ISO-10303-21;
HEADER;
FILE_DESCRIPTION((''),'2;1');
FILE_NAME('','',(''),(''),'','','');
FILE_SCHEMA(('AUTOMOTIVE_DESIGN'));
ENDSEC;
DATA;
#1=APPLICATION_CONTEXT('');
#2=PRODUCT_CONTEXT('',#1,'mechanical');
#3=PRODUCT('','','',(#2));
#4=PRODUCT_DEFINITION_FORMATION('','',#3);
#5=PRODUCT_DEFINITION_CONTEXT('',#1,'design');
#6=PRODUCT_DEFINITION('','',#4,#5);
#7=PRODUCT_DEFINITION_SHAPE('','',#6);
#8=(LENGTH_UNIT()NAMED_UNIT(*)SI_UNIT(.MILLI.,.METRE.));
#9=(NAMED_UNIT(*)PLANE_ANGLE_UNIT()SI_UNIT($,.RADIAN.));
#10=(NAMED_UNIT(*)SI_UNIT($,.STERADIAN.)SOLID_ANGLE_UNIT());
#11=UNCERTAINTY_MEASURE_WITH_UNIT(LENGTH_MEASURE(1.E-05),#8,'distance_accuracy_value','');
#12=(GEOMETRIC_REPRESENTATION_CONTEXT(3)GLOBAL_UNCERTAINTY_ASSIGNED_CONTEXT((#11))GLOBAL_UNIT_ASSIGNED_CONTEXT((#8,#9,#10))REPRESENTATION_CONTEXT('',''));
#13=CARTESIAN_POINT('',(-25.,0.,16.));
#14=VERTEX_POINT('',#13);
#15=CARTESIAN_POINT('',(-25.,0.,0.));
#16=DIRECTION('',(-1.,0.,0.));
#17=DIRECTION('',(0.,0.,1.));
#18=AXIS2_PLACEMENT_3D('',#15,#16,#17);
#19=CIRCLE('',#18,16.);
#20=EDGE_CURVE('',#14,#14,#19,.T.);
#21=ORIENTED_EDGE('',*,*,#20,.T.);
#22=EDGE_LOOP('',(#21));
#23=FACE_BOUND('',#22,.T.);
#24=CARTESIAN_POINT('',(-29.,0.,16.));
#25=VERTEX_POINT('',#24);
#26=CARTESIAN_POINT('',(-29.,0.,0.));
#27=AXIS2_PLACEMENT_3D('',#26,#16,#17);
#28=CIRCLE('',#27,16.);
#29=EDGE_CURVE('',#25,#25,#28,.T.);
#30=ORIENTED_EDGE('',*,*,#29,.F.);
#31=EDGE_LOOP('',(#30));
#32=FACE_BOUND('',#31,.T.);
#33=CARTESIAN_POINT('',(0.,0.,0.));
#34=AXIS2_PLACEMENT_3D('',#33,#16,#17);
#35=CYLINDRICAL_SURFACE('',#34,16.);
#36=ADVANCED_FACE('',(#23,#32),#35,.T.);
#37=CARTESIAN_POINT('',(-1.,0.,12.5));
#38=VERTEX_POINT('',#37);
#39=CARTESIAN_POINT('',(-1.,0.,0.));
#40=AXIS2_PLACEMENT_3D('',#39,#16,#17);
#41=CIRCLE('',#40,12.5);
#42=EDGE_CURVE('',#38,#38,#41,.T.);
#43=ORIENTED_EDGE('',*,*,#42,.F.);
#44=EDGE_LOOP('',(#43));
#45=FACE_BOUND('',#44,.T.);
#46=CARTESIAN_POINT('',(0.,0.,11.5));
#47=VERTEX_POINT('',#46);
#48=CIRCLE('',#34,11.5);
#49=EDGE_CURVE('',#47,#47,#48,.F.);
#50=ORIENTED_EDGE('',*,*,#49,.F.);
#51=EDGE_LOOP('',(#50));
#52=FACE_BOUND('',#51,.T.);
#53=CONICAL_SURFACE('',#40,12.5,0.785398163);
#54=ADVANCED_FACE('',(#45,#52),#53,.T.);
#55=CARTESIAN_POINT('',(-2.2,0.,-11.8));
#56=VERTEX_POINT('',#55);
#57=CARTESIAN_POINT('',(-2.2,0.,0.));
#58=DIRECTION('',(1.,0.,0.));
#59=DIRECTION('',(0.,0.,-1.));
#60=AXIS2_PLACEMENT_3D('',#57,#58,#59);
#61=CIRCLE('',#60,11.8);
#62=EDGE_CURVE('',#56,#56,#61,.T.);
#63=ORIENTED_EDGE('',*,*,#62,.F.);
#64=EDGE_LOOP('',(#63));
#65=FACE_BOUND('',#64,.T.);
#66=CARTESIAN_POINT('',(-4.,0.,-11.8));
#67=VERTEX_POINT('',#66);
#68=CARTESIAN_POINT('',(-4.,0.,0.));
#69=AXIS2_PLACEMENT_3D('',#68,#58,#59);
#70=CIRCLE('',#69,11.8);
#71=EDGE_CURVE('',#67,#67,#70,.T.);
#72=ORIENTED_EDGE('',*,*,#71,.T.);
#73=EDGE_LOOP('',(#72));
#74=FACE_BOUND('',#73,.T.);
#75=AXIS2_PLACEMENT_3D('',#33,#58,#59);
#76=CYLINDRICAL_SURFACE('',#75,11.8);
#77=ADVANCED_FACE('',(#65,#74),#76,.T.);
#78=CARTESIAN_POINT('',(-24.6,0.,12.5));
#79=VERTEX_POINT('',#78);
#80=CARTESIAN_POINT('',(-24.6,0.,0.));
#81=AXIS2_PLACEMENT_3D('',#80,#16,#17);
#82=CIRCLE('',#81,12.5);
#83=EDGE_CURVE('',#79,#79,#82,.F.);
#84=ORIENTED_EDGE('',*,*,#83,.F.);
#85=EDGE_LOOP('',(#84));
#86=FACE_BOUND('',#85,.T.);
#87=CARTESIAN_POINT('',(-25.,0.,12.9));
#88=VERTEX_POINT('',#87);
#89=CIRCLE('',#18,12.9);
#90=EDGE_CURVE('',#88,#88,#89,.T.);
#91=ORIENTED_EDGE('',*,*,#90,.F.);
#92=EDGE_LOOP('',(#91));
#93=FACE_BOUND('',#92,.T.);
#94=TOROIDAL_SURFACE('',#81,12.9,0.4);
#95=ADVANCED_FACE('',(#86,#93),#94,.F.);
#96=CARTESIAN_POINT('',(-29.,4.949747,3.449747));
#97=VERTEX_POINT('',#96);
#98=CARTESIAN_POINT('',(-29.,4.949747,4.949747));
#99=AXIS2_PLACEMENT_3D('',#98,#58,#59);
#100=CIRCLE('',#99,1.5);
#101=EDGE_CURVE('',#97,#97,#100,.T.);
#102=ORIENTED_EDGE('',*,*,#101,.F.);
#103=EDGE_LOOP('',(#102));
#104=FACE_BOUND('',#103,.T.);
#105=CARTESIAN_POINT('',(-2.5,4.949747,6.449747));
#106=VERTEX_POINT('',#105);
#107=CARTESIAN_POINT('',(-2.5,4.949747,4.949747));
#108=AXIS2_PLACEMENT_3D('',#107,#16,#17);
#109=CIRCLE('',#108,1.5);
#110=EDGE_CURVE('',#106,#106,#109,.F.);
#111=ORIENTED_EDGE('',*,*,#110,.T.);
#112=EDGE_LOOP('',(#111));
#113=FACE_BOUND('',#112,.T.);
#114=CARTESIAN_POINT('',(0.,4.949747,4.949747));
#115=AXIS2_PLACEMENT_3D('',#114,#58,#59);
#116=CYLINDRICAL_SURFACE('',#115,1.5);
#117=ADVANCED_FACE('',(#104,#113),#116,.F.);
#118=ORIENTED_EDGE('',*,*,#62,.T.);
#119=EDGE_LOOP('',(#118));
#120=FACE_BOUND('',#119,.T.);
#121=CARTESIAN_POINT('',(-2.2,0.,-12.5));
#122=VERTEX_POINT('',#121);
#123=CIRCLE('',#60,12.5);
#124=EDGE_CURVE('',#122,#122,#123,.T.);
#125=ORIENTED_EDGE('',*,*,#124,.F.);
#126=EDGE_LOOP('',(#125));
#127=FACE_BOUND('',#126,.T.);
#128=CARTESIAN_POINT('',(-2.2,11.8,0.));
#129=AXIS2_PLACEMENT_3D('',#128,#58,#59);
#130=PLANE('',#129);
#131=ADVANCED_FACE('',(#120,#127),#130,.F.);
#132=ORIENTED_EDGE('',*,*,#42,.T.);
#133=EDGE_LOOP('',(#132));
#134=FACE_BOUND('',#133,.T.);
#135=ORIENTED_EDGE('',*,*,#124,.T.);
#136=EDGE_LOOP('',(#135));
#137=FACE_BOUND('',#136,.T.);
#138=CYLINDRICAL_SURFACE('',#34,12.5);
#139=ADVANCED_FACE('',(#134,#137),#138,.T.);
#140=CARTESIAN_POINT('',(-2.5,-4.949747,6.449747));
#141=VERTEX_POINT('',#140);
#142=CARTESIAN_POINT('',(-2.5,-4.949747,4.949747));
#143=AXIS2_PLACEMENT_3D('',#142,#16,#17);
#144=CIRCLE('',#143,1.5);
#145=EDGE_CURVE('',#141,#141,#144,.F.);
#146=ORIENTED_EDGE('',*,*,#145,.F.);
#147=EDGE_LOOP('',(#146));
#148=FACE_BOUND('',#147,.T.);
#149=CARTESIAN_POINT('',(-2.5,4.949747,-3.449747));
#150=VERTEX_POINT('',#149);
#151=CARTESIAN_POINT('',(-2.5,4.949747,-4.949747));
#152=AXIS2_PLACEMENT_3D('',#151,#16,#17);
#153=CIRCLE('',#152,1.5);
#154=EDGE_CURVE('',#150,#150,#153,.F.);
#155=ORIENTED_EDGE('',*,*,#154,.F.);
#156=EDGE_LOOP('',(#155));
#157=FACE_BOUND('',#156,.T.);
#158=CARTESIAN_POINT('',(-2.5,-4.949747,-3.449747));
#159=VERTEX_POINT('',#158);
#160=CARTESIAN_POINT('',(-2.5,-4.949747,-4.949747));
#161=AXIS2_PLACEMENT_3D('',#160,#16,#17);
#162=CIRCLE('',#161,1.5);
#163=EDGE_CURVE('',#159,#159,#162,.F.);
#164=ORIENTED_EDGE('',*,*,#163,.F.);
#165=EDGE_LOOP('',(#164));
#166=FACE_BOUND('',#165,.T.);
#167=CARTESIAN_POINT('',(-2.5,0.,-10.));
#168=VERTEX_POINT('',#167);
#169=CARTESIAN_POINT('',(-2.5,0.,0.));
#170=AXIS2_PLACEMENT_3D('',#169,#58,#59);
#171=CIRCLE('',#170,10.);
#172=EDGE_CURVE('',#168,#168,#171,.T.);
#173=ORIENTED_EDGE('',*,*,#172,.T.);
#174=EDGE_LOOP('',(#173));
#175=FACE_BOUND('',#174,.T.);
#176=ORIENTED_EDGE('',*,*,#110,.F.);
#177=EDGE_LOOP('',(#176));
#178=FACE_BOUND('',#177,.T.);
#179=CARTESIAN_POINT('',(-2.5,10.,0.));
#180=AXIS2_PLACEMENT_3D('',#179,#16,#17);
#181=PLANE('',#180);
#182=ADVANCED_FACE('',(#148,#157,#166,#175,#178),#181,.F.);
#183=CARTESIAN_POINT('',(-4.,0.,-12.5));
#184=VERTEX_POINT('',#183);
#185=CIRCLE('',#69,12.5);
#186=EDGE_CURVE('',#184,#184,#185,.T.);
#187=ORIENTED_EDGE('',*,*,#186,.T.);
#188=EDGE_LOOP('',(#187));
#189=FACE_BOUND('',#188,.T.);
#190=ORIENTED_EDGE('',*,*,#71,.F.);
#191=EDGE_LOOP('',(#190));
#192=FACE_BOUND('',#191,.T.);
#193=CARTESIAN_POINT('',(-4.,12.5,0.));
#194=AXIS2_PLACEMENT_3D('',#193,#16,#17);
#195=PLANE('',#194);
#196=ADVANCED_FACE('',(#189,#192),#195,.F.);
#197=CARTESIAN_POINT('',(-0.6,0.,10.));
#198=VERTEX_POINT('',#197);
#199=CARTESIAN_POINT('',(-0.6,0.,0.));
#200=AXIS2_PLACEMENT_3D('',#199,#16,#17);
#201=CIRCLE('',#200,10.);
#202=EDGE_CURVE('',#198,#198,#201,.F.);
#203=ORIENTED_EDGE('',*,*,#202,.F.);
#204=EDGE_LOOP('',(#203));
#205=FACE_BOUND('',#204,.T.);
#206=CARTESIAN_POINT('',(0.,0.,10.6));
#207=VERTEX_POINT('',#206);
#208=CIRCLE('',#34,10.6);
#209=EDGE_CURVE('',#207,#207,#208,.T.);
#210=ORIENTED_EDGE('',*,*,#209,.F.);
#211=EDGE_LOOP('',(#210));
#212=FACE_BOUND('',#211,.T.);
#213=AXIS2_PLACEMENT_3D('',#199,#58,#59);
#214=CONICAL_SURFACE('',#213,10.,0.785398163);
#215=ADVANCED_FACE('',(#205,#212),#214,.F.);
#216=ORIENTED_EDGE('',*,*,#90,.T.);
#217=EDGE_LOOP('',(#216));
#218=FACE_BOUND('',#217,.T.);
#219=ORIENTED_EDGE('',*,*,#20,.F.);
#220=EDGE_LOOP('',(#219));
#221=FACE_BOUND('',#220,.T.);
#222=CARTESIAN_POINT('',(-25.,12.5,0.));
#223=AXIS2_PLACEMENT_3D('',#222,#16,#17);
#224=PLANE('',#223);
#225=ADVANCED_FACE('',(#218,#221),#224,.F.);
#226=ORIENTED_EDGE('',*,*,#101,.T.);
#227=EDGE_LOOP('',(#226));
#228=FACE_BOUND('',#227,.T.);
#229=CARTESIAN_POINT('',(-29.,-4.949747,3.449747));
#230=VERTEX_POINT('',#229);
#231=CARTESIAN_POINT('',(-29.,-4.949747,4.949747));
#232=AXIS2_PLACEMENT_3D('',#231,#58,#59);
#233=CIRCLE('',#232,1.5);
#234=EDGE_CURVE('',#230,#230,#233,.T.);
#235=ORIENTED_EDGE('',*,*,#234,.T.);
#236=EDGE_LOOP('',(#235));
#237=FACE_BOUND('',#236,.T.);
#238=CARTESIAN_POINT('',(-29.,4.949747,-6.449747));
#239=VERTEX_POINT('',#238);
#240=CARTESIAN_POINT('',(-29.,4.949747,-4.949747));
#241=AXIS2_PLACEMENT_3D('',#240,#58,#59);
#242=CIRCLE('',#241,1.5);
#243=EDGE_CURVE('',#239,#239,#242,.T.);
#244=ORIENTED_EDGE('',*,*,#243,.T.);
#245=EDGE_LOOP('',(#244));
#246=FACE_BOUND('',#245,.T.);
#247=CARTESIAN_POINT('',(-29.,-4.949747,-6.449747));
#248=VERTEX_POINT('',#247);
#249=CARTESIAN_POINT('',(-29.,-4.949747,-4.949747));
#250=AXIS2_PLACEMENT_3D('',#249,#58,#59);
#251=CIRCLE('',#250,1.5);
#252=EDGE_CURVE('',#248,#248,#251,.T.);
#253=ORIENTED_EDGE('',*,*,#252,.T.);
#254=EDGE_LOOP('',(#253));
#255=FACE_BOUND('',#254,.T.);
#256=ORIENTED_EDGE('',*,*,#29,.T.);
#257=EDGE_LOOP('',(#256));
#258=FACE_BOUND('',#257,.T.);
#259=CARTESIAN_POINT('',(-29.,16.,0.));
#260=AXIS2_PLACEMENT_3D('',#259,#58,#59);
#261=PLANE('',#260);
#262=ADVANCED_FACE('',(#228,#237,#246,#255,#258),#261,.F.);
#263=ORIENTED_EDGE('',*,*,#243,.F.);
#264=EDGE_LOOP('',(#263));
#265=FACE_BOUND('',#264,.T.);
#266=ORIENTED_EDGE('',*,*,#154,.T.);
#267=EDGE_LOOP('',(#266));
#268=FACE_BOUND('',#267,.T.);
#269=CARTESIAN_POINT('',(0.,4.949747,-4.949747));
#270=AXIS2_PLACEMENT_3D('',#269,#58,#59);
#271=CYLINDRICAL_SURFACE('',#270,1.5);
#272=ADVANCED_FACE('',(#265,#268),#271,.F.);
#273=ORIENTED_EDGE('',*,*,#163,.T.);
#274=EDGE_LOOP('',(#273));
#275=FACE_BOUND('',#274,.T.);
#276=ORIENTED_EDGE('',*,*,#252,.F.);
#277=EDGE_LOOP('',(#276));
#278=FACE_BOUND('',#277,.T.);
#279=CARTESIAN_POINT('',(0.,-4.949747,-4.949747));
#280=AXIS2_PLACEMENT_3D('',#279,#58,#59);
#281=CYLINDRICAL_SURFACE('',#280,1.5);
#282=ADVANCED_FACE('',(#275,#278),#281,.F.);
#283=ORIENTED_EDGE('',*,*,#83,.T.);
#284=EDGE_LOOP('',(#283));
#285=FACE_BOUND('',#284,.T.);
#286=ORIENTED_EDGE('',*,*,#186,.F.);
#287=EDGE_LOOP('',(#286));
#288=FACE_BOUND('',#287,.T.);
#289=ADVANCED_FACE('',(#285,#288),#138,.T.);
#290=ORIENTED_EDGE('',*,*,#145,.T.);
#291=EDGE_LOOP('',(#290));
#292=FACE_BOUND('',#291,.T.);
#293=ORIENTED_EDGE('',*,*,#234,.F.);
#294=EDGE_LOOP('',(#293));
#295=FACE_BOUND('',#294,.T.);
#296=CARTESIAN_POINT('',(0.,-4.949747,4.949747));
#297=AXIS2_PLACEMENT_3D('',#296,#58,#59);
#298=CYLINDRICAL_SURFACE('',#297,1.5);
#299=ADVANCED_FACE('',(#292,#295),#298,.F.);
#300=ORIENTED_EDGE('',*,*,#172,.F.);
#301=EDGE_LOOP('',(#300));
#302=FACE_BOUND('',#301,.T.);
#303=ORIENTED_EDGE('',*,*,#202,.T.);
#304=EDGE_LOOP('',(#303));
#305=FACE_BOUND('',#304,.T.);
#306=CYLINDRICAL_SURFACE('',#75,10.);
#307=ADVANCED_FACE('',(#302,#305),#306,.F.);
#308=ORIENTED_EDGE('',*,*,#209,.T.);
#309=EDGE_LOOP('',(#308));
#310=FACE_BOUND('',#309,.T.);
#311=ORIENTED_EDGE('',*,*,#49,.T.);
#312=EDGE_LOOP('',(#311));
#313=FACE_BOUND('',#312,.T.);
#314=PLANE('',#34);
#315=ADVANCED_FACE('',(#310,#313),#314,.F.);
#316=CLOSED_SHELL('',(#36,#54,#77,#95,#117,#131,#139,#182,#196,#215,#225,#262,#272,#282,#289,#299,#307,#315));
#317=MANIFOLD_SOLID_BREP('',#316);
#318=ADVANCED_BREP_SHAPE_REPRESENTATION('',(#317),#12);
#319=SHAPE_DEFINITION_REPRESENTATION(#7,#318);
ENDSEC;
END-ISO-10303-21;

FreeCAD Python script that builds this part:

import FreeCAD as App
import Part
import Sketcher

V = App.Vector


def edges_at(feature, points):
    """Names of the edges that pass closest to the given points."""
    edges = feature.Shape.Edges
    near = lambda p: min(range(len(edges)), key=lambda i: edges[i].distToShape(Part.Vertex(*p))[0])
    return sorted({f"Edge{near(p) + 1}" for p in points})

doc = App.newDocument("Part")
body = doc.addObject("PartDesign::Body", "Body")

# Sketch on XY plane
sketch1 = doc.addObject("Sketcher::SketchObject", "Sketch")
body.addObject(sketch1)
sketch1.AttachmentSupport = (doc.XY_Plane, [""])
sketch1.MapMode = "FlatFace"
sketch1.addGeometry([
    Part.LineSegment(V(0, 0, 0), V(0, 12.5, 0)),  # 0
    Part.LineSegment(V(0, 12.5, 0), V(-25, 12.5, 0)),  # 1
    Part.LineSegment(V(-25, 12.5, 0), V(-25, 16, 0)),  # 2
    Part.LineSegment(V(-25, 16, 0), V(-29, 16, 0)),  # 3
    Part.LineSegment(V(-29, 16, 0), V(-29, 0, 0)),  # 4
    Part.LineSegment(V(-29, 0, 0), V(0, 0, 0)),  # 5
], False)
sketch1.addConstraint([
    Sketcher.Constraint("Coincident", 0, 2, 1, 1),
    Sketcher.Constraint("Coincident", 1, 2, 2, 1),
    Sketcher.Constraint("Coincident", 2, 2, 3, 1),
    Sketcher.Constraint("Coincident", 3, 2, 4, 1),
    Sketcher.Constraint("Coincident", 4, 2, 5, 1),
    Sketcher.Constraint("Coincident", 5, 2, 0, 1),
    Sketcher.Constraint("Vertical", 0),
    Sketcher.Constraint("Horizontal", 1),
    Sketcher.Constraint("Vertical", 2),
    Sketcher.Constraint("Horizontal", 3),
    Sketcher.Constraint("Vertical", 4),
    Sketcher.Constraint("Horizontal", 5),
    Sketcher.Constraint("Coincident", 5, 2, -1, 1),
    Sketcher.Constraint("DistanceX", 1, 2, 1, 1, 25.0),
    Sketcher.Constraint("DistanceX", 3, 2, 3, 1, 4.0),
    Sketcher.Constraint("DistanceY", 4, 2, 4, 1, 16.0),
    Sketcher.Constraint("DistanceY", 0, 1, 0, 2, 12.5),
])
revolution = doc.addObject("PartDesign::Revolution", "Revolution")
body.addObject(revolution)
revolution.Profile = sketch1
revolution.ReferenceAxis = (sketch1, ["H_Axis"])
revolution.Angle = 360

# Sketch on XY plane
sketch2 = doc.addObject("Sketcher::SketchObject", "Sketch001")
body.addObject(sketch2)
sketch2.AttachmentSupport = (doc.XY_Plane, [""])
sketch2.MapMode = "FlatFace"
sketch2.addGeometry([
    Part.LineSegment(V(-4, 12.5, 0), V(-4, 11.8, 0)),
    Part.LineSegment(V(-4, 11.8, 0), V(-2.2, 11.8, 0)),
    Part.LineSegment(V(-2.2, 11.8, 0), V(-2.2, 12.5, 0)),
    Part.LineSegment(V(-2.2, 12.5, 0), V(-4, 12.5, 0)),
], False)
sketch2.addConstraint([
    Sketcher.Constraint("Coincident", 0, 2, 1, 1),
    Sketcher.Constraint("Coincident", 1, 2, 2, 1),
    Sketcher.Constraint("Coincident", 2, 2, 3, 1),
    Sketcher.Constraint("Coincident", 3, 2, 0, 1),
    Sketcher.Constraint("Vertical", 0),
    Sketcher.Constraint("Horizontal", 1),
    Sketcher.Constraint("Vertical", 2),
    Sketcher.Constraint("Horizontal", 3),
    Sketcher.Constraint("DistanceX", 1, 1, 1, 2, 1.8),
    Sketcher.Constraint("DistanceY", 0, 2, 0, 1, 0.7),
    Sketcher.Constraint("DistanceX", 0, 2, -1, 1, 4.0),
    Sketcher.Constraint("DistanceY", -1, 1, 0, 2, 11.8),
])
groove = doc.addObject("PartDesign::Groove", "Groove")
body.addObject(groove)
groove.Profile = sketch2
groove.ReferenceAxis = (sketch2, ["H_Axis"])
groove.Angle = 360
doc.recompute()

chamfer = doc.addObject("PartDesign::Chamfer", "Chamfer")
body.addObject(chamfer)
chamfer.Base = (groove, edges_at(groove, [(0, 0, -12.5)]))
chamfer.Size = 1
doc.recompute()

fillet = doc.addObject("PartDesign::Fillet", "Fillet")
body.addObject(fillet)
fillet.Base = (chamfer, edges_at(chamfer, [(-25, 0, -12.5)]))
fillet.Radius = 0.4

# Sketch on YZ plane
sketch3 = doc.addObject("Sketcher::SketchObject", "Sketch002")
body.addObject(sketch3)
sketch3.AttachmentSupport = (doc.YZ_Plane, [""])
sketch3.MapMode = "FlatFace"
sketch3.addGeometry(Part.Circle(V(4.9, -4.9, 0), V(0, 0, 1), 1.5), False)
sketch3.addConstraint([
    Sketcher.Constraint("Diameter", 0, 3.0),
    Sketcher.Constraint("DistanceX", -1, 1, 0, 3, 4.949747),
    Sketcher.Constraint("DistanceY", 0, 3, -1, 1, 4.949747),
])
doc.recompute()
hole = doc.addObject("PartDesign::Hole", "Hole")
body.addObject(hole)
hole.Profile = sketch3
hole.ThreadType = "None"
hole.Diameter = 3
hole.DepthType = "ThroughAll"
doc.recompute()

polarpattern = doc.addObject("PartDesign::PolarPattern", "PolarPattern")
body.addObject(polarpattern)
polarpattern.Originals = [hole]
polarpattern.Axis = (doc.X_Axis, [""])
polarpattern.Angle = 360
polarpattern.Occurrences = 4
body.Tip = polarpattern

# Sketch on XY plane
sketch4 = doc.addObject("Sketcher::SketchObject", "Sketch003")
body.addObject(sketch4)
sketch4.AttachmentSupport = (doc.XY_Plane, [""])
sketch4.MapMode = "FlatFace"
sketch4.addGeometry([
    Part.LineSegment(V(-2.5, 10, 0), V(-2.5, 0, 0)),
    Part.LineSegment(V(-2.5, 0, 0), V(0, 0, 0)),
    Part.LineSegment(V(0, 0, 0), V(0, 10, 0)),
    Part.LineSegment(V(0, 10, 0), V(-2.5, 10, 0)),
], False)
sketch4.addConstraint([
    Sketcher.Constraint("Coincident", 0, 2, 1, 1),
    Sketcher.Constraint("Coincident", 1, 2, 2, 1),
    Sketcher.Constraint("Coincident", 2, 2, 3, 1),
    Sketcher.Constraint("Coincident", 3, 2, 0, 1),
    Sketcher.Constraint("Vertical", 0),
    Sketcher.Constraint("Horizontal", 1),
    Sketcher.Constraint("Vertical", 2),
    Sketcher.Constraint("Horizontal", 3),
    Sketcher.Constraint("Coincident", 1, 2, -1, 1),
    Sketcher.Constraint("DistanceY", 0, 2, 0, 1, 10.0),
    Sketcher.Constraint("DistanceX", 1, 1, 1, 2, 2.5),
])
groove2 = doc.addObject("PartDesign::Groove", "Groove001")
body.addObject(groove2)
groove2.Profile = sketch4
groove2.ReferenceAxis = (sketch4, ["H_Axis"])
groove2.Angle = 360
doc.recompute()

chamfer2 = doc.addObject("PartDesign::Chamfer", "Chamfer001")
body.addObject(chamfer2)
chamfer2.Base = (groove2, edges_at(groove2, [(0, 0, 10)]))
chamfer2.Size = 0.6

doc.recompute()
